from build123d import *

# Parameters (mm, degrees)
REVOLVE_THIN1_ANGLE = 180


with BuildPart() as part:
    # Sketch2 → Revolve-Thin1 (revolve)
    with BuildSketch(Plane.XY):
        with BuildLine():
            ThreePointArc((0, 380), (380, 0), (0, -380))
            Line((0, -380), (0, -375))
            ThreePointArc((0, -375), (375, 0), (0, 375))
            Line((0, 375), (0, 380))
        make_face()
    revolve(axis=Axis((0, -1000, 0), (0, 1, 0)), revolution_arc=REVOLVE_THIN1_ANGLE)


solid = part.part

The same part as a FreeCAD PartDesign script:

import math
import FreeCAD as App
import Part
import Sketcher

V = App.Vector
Q = App.Units.Quantity

doc = App.newDocument("Part")
body = doc.addObject("PartDesign::Body", "Body")

sketch1 = doc.addObject("Sketcher::SketchObject", "Sketch")
body.addObject(sketch1)
sketch1.AttachmentSupport = (doc.XY_Plane, [""])
sketch1.MapMode = "FlatFace"
sketch1.addGeometry(Part.ArcOfCircle(Part.Circle(V(0, 0, 0), V(0, 0, 1), 380), math.radians(-90), math.radians(90)), False)
sketch1.addGeometry(Part.LineSegment(V(0, 380, 0), V(0, 375, 0)), False)
sketch1.addGeometry(Part.ArcOfCircle(Part.Circle(V(0, 0, 0), V(0, 0, 1), 375), math.radians(-90), math.radians(90)), False)
sketch1.addGeometry(Part.LineSegment(V(0, -375, 0), V(0, -380, 0)), False)
sketch1.addConstraint(Sketcher.Constraint("Coincident", 0, 2, 1, 1))
sketch1.addConstraint(Sketcher.Constraint("Coincident", 1, 2, 2, 2))
sketch1.addConstraint(Sketcher.Constraint("Coincident", 2, 1, 3, 1))
sketch1.addConstraint(Sketcher.Constraint("Coincident", 3, 2, 0, 1))
sketch1.addConstraint(Sketcher.Constraint("Vertical", 1))
sketch1.addConstraint(Sketcher.Constraint("Vertical", 3))
sketch1.addConstraint(Sketcher.Constraint("Coincident", 0, 3, -1, 1))
sketch1.addConstraint(Sketcher.Constraint("Coincident", 2, 3, -1, 1))
sketch1.addConstraint(Sketcher.Constraint("PointOnObject", 1, 2, -2))
sketch1.addConstraint(Sketcher.Constraint("PointOnObject", 3, 2, -2))
sketch1.addConstraint(Sketcher.Constraint("Radius", 0, Q("380 mm")))
sketch1.addConstraint(Sketcher.Constraint("Radius", 2, Q("375 mm")))
revolution = doc.addObject("PartDesign::Revolution", "Revolution")
body.addObject(revolution)
revolution.Profile = sketch1
revolution.ReferenceAxis = (sketch1, ["V_Axis"])
revolution.Angle = 180

doc.recompute()
